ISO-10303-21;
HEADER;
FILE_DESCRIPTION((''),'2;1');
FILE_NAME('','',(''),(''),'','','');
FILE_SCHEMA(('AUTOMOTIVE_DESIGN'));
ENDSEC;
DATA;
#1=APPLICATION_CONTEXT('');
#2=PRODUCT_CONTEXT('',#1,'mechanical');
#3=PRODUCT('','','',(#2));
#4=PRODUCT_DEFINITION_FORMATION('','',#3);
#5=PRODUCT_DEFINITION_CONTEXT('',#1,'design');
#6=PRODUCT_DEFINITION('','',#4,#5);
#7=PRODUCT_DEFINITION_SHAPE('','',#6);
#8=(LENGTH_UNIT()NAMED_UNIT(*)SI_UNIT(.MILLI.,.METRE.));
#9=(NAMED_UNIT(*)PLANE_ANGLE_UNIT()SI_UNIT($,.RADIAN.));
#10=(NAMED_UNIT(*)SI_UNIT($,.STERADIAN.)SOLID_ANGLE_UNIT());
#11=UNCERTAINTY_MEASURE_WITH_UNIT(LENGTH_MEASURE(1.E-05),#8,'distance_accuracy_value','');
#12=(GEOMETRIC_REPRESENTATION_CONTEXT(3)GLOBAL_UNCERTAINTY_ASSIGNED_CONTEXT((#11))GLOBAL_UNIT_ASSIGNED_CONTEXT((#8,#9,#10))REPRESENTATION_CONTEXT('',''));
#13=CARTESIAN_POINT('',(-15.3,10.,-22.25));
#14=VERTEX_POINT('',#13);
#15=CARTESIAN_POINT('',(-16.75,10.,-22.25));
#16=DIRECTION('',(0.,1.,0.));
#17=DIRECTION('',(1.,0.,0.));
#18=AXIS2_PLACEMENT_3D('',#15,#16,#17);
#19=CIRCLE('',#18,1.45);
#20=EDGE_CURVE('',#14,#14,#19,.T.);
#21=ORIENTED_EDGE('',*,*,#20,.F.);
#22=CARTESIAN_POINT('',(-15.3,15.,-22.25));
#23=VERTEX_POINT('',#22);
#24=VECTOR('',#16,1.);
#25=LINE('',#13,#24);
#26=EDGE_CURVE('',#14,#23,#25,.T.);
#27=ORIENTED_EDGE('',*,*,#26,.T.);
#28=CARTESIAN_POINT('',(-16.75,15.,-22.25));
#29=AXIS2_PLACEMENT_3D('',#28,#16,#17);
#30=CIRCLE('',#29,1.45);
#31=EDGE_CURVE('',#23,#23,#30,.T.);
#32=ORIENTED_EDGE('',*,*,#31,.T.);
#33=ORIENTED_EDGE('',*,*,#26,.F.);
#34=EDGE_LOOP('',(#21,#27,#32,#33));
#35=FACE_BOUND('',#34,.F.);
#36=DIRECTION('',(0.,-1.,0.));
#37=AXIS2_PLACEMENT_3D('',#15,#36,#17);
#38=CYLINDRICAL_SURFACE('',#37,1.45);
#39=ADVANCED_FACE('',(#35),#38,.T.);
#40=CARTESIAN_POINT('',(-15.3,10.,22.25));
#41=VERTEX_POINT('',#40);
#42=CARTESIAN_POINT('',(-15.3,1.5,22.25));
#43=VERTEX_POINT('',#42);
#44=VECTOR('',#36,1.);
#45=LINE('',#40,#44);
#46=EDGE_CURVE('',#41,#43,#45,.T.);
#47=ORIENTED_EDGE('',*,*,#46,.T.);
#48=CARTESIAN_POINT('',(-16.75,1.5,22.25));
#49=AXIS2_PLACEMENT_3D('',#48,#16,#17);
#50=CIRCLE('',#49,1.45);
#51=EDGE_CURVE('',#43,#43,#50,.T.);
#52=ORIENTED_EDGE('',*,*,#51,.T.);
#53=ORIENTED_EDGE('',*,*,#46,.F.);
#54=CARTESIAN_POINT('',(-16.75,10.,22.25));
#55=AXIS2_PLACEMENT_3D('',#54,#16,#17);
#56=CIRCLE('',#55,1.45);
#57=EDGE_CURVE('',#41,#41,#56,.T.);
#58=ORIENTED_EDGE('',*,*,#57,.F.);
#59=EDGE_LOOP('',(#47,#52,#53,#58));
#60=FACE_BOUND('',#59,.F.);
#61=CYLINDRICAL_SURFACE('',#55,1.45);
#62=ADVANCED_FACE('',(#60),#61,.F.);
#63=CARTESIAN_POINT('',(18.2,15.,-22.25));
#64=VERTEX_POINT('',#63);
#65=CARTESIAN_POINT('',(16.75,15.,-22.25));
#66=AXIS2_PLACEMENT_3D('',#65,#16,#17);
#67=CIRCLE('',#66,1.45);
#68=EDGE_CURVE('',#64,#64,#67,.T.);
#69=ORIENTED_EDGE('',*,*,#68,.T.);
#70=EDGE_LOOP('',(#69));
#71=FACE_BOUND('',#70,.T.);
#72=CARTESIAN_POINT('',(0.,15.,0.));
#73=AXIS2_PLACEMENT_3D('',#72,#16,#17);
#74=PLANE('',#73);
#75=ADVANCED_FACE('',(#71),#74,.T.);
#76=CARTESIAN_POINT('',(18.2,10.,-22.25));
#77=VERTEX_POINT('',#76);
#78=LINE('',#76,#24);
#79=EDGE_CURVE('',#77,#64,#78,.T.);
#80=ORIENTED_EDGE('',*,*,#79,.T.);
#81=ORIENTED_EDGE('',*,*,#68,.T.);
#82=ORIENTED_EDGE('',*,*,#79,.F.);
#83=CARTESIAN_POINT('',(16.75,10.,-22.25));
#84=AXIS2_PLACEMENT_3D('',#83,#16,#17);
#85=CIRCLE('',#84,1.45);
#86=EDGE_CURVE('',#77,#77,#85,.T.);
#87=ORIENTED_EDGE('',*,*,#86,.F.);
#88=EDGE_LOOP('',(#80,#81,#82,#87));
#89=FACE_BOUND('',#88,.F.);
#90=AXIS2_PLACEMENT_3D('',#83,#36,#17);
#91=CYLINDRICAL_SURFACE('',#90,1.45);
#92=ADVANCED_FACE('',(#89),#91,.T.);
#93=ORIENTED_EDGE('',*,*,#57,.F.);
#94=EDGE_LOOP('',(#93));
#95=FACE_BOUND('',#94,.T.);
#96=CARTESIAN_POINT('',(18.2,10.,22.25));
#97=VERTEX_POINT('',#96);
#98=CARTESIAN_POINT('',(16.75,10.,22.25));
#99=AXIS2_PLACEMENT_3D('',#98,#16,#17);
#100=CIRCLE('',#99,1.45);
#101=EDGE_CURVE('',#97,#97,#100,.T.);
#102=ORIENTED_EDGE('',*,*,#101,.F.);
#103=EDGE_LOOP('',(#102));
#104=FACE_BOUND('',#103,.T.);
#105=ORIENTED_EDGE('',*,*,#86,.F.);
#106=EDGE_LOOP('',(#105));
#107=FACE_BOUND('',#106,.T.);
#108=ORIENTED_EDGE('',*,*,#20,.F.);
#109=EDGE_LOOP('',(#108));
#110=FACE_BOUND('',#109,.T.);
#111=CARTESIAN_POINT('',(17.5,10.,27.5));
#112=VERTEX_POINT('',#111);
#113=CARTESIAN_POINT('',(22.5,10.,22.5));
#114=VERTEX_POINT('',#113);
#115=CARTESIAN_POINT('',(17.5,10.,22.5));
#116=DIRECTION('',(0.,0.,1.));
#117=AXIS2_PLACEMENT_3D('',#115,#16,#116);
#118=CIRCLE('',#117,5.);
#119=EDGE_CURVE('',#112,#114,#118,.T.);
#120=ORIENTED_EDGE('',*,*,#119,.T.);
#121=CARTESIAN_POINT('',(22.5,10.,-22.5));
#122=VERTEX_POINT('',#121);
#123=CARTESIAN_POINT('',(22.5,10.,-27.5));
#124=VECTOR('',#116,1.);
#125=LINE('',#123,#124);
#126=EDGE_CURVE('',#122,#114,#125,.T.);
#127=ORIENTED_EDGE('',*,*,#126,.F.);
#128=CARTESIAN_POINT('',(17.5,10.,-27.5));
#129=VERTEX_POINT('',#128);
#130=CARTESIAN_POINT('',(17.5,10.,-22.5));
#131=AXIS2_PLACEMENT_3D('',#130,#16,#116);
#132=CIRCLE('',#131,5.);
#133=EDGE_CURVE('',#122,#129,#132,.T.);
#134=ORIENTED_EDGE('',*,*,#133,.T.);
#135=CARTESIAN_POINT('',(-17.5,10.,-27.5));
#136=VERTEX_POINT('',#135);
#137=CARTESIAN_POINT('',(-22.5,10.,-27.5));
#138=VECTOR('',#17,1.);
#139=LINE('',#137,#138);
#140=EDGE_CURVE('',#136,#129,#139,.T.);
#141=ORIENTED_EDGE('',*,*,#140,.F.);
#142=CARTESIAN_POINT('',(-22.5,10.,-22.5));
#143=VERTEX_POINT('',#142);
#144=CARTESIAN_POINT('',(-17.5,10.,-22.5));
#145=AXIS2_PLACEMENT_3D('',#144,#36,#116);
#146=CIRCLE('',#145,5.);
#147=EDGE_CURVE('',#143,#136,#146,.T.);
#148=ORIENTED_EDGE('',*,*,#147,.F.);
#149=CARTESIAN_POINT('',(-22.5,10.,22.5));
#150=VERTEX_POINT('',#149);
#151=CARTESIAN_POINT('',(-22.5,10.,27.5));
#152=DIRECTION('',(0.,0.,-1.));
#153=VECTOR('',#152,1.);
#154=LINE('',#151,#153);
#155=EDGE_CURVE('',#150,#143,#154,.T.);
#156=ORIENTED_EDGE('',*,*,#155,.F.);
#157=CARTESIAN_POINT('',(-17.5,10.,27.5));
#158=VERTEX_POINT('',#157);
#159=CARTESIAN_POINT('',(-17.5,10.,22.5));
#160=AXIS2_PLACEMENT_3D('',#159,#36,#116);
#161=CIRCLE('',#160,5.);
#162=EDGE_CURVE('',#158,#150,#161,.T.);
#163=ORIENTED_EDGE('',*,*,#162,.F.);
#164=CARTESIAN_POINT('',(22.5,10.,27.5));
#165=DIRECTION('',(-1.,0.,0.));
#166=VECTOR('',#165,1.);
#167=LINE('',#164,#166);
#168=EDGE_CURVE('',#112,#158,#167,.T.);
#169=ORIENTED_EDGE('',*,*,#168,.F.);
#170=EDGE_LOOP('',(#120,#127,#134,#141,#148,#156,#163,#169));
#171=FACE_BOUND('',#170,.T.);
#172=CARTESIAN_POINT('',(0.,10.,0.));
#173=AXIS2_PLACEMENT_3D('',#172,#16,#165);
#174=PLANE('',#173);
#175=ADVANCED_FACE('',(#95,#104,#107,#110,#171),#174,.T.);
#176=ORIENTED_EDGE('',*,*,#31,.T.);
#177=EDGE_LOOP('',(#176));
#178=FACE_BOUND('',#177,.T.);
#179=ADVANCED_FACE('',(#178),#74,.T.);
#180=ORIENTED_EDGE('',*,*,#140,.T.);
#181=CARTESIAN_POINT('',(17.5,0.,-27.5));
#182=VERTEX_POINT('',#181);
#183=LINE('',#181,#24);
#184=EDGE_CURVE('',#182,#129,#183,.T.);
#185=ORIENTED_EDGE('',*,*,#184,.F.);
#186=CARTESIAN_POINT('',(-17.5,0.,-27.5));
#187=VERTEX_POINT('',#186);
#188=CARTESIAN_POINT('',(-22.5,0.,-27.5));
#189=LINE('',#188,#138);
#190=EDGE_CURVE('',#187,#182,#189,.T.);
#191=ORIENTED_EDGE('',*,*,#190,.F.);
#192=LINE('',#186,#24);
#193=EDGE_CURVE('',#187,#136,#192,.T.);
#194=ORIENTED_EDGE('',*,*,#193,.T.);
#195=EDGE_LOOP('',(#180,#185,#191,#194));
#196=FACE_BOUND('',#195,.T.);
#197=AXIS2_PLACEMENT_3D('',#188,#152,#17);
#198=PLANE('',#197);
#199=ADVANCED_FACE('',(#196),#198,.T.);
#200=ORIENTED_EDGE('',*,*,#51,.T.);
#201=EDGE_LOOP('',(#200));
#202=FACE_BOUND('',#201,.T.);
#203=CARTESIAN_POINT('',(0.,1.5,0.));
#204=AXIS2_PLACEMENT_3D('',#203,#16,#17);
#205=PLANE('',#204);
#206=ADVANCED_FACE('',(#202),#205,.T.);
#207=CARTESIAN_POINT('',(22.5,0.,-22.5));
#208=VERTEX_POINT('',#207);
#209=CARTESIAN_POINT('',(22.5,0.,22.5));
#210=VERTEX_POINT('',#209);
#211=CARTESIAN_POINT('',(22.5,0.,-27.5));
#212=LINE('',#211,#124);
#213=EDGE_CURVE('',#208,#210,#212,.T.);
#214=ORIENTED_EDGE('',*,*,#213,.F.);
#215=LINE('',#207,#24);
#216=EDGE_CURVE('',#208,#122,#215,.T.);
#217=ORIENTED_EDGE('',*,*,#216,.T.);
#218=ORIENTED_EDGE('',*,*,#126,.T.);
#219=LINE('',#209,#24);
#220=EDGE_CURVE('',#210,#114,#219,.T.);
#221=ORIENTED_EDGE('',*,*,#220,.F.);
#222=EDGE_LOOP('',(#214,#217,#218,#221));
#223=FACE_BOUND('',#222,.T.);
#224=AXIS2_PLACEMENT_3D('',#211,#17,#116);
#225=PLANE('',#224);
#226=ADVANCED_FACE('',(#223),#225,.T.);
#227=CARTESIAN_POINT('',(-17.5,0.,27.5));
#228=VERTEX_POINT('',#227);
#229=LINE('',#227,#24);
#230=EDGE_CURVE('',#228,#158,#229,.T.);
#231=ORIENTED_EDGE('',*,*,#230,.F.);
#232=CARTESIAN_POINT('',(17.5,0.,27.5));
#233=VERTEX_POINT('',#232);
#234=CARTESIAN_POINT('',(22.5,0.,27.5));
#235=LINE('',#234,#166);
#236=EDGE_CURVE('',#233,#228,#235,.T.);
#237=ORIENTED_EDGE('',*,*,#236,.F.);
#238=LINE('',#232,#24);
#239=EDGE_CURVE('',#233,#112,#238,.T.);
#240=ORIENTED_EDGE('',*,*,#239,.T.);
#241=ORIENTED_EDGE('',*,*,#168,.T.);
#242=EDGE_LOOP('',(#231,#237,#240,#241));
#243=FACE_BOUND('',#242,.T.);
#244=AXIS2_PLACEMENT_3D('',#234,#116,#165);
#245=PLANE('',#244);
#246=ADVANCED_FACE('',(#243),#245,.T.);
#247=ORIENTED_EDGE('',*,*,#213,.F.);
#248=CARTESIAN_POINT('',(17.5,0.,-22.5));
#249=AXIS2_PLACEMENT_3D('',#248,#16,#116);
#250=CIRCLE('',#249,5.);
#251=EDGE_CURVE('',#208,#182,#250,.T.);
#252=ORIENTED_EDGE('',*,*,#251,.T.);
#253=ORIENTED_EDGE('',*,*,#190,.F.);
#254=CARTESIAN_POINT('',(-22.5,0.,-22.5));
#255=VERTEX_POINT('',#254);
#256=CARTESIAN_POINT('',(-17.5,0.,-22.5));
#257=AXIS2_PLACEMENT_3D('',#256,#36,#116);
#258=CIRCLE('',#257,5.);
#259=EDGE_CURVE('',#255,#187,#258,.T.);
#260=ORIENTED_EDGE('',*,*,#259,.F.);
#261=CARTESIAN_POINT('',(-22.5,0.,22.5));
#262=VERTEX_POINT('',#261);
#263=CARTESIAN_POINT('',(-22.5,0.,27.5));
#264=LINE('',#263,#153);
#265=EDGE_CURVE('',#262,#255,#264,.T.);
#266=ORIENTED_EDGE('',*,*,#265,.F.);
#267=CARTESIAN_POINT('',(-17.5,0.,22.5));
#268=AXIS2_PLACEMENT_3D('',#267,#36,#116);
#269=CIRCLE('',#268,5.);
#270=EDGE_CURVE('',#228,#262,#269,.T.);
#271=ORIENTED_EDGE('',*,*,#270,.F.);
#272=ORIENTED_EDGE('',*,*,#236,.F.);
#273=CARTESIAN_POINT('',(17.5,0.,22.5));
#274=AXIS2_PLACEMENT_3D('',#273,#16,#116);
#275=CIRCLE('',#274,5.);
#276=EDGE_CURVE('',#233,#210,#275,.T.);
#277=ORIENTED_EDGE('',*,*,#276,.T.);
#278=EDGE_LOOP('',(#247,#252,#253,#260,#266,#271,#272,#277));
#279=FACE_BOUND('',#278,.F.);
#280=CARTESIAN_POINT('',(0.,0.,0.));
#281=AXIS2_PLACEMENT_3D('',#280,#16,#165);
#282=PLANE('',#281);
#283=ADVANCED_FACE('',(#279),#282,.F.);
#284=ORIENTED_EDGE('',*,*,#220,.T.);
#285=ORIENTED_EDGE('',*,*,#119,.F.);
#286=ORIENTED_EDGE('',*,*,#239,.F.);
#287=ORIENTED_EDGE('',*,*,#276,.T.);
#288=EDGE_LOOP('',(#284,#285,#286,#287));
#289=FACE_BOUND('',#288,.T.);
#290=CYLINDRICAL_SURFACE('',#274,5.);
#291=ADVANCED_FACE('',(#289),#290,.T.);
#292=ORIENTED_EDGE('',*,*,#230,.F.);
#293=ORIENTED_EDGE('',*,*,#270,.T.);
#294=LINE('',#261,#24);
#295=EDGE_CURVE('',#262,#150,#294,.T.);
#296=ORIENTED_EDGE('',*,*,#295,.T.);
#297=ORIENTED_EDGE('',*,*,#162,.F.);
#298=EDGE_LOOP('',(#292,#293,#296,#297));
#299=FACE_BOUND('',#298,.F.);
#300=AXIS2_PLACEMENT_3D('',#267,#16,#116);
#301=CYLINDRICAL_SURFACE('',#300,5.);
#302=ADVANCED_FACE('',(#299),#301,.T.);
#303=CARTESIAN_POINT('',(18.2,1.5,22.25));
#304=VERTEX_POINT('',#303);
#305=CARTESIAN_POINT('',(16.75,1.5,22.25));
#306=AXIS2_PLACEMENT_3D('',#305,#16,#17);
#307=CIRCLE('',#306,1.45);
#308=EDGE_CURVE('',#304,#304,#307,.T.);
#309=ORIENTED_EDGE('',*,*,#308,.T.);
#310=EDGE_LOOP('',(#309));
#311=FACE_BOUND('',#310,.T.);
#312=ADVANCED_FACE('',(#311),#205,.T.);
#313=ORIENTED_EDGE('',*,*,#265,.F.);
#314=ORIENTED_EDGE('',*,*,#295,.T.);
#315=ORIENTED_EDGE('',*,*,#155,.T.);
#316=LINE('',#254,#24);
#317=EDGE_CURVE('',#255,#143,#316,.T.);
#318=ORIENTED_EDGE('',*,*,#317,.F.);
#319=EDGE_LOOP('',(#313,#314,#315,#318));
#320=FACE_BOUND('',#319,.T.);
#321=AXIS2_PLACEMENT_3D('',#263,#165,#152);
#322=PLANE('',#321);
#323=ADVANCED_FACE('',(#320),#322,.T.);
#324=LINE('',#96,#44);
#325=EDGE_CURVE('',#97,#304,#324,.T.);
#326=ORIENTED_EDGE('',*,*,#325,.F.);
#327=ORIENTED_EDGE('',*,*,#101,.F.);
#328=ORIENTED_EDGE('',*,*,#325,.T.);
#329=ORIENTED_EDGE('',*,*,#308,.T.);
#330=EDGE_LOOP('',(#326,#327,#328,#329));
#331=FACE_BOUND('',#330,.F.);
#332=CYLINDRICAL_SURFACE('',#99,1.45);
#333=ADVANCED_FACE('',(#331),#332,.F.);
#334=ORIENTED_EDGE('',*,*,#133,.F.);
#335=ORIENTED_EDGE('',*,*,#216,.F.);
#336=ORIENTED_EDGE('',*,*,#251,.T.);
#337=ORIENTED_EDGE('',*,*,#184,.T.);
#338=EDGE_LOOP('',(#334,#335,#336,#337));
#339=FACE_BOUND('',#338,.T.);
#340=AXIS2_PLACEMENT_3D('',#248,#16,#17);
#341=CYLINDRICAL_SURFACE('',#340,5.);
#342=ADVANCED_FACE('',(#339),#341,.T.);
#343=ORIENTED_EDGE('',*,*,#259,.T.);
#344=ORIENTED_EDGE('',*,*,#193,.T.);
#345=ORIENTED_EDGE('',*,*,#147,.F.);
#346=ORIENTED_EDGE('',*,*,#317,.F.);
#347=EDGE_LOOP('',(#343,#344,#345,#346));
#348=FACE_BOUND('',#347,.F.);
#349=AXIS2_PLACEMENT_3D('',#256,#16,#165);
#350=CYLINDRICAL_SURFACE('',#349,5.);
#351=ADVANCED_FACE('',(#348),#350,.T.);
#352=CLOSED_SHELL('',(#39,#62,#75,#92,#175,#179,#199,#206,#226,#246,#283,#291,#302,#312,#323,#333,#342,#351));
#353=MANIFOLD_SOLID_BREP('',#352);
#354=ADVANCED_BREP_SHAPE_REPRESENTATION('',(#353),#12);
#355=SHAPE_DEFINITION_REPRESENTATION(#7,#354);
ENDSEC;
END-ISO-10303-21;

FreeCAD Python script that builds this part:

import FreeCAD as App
import Part
import Sketcher
from FreeCAD import Vector
Q = App.Units.Quantity


def edges_at(feature, points):
    """Names of the edges that pass closest to the given points."""
    edges = feature.Shape.Edges
    near = lambda p: min(range(len(edges)), key=lambda i: edges[i].distToShape(Part.Vertex(*p))[0])
    return sorted({f"Edge{near(p) + 1}" for p in points})


def add_polygon(sketch, points):
    """Adds a closed chain of lines whose ends are joined by coincident constraints."""
    first, n = sketch.GeometryCount, len(points)
    for a, b in zip(points, points[1:] + points[:1]):
        sketch.addGeometry(Part.LineSegment(App.Vector(*a, 0), App.Vector(*b, 0)), False)
    for i in range(n):
        sketch.addConstraint(Sketcher.Constraint("Coincident", first + i, 2, first + (i + 1) % n, 1))

doc = App.newDocument("Part")
body = doc.addObject("PartDesign::Body", "Body")

sketch1 = body.newObject("Sketcher::SketchObject", "Sketch")
sketch1.AttachmentSupport = (doc.getObject("XZ_Plane"), [""])
sketch1.MapMode = "FlatFace"
add_polygon(sketch1, [(-22, 28), (22, 28), (22, -28), (-22, -28)])
sketch1.addConstraint(Sketcher.Constraint("Horizontal", 0))
sketch1.addConstraint(Sketcher.Constraint("Vertical", 1))
sketch1.addConstraint(Sketcher.Constraint("Horizontal", 2))
sketch1.addConstraint(Sketcher.Constraint("Vertical", 3))
sketch1.addConstraint(Sketcher.Constraint("Symmetric", 0, 2, 2, 2, -1, 1))
sketch1.addConstraint(Sketcher.Constraint("DistanceX", 0, 1, 0, 2, Q("45 mm")))
sketch1.addConstraint(Sketcher.Constraint("DistanceY", 1, 2, 1, 1, Q("55 mm")))
pad1 = body.newObject("PartDesign::Pad", "Pad")
pad1.Profile = sketch1
pad1.Length = 10
pad1.Reversed = True

sketch2 = body.newObject("Sketcher::SketchObject", "Sketch001")
sketch2.AttachmentSupport = (doc.getObject("XZ_Plane"), [""])
sketch2.MapMode = "FlatFace"
sketch2.AttachmentOffset = App.Placement(Vector(0, 0, -10), App.Rotation())
sketch2.addGeometry(Part.Circle(Vector(16.8, 22.2, 0), Vector(0, 0, 1), 1.4), False)
sketch2.addGeometry(Part.Circle(Vector(-16.8, 22.2, 0), Vector(0, 0, 1), 1.4), False)
sketch2.addConstraint(Sketcher.Constraint("Equal", 0, 1))
sketch2.addConstraint(Sketcher.Constraint("Symmetric", 0, 3, 1, 3, -2))
sketch2.addConstraint(Sketcher.Constraint("Diameter", 0, Q("2.9 mm")))
sketch2.addConstraint(Sketcher.Constraint("DistanceX", 1, 3, 0, 3, Q("33.5 mm")))
sketch2.addConstraint(Sketcher.Constraint("DistanceY", -1, 1, 0, 3, Q("22.25 mm")))
pocket1 = body.newObject("PartDesign::Pocket", "Pocket")
pocket1.Profile = sketch2
pocket1.Length = 8.5
pocket1.Reversed = True

sketch3 = body.newObject("Sketcher::SketchObject", "Sketch002")
sketch3.AttachmentSupport = (doc.getObject("XZ_Plane"), [""])
sketch3.MapMode = "FlatFace"
sketch3.AttachmentOffset = App.Placement(Vector(0, 0, -10), App.Rotation())
sketch3.addGeometry(Part.Circle(Vector(16.8, -22.2, 0), Vector(0, 0, 1), 1.4), False)
sketch3.addGeometry(Part.Circle(Vector(-16.8, -22.2, 0), Vector(0, 0, 1), 1.4), False)
sketch3.addConstraint(Sketcher.Constraint("Equal", 0, 1))
sketch3.addConstraint(Sketcher.Constraint("Symmetric", 0, 3, 1, 3, -2))
sketch3.addConstraint(Sketcher.Constraint("Diameter", 0, Q("2.9 mm")))
sketch3.addConstraint(Sketcher.Constraint("DistanceX", 1, 3, 0, 3, Q("33.5 mm")))
sketch3.addConstraint(Sketcher.Constraint("DistanceY", 0, 3, -1, 1, Q("22.25 mm")))
pad2 = body.newObject("PartDesign::Pad", "Pad001")
pad2.Profile = sketch3
pad2.Length = 5
pad2.Reversed = True
doc.recompute()

fillet = body.newObject("PartDesign::Fillet", "Fillet")
fillet.Base = (pad2, edges_at(pad2, [
    (22.5, 5, 27.5),
    (22.5, 5, -27.5),
    (-22.5, 5, -27.5),
    (-22.5, 5, 27.5),
]))
fillet.Radius = 5

doc.recompute()
